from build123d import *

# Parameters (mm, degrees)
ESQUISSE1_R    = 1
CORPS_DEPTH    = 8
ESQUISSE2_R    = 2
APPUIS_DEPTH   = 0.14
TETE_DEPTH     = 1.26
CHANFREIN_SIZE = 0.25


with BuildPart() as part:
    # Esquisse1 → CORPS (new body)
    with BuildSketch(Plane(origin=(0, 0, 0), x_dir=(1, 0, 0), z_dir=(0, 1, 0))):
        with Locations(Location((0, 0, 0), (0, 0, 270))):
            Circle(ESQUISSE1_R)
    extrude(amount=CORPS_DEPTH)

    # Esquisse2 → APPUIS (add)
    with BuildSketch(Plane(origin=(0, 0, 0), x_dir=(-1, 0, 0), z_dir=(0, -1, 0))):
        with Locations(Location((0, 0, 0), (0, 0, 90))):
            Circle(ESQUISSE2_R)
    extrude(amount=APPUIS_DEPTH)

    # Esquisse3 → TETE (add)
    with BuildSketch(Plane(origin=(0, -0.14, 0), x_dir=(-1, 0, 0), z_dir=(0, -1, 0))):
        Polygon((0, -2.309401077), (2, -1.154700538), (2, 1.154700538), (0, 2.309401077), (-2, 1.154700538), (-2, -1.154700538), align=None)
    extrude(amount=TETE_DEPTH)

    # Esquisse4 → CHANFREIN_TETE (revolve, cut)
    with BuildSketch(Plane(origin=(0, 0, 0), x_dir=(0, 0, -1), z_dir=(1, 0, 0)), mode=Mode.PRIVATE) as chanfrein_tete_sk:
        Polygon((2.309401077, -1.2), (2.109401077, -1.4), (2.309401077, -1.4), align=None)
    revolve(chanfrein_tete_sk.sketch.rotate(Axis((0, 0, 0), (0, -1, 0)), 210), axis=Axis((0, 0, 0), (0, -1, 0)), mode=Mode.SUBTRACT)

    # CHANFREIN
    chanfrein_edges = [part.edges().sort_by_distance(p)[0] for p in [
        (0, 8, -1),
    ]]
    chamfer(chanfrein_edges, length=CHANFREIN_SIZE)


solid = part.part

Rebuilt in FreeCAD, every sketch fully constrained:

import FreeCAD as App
import Part
import Sketcher
from FreeCAD import Vector
Q = App.Units.Quantity


def edges_at(feature, points):
    """Names of the edges that pass closest to the given points."""
    edges = feature.Shape.Edges
    near = lambda p: min(range(len(edges)), key=lambda i: edges[i].distToShape(Part.Vertex(*p))[0])
    return sorted({f"Edge{near(p) + 1}" for p in points})


def add_polygon(sketch, points):
    """Adds a closed chain of lines whose ends are joined by coincident constraints."""
    first, n = sketch.GeometryCount, len(points)
    for a, b in zip(points, points[1:] + points[:1]):
        sketch.addGeometry(Part.LineSegment(App.Vector(*a, 0), App.Vector(*b, 0)), False)
    for i in range(n):
        sketch.addConstraint(Sketcher.Constraint("Coincident", first + i, 2, first + (i + 1) % n, 1))

doc = App.newDocument("Part")
body = doc.addObject("PartDesign::Body", "Body")

sketch1 = body.newObject("Sketcher::SketchObject", "Sketch")
sketch1.AttachmentSupport = (doc.getObject("XZ_Plane"), [""])
sketch1.MapMode = "FlatFace"
sketch1.addGeometry(Part.Circle(Vector(0, 0, 0), Vector(0, 0, 1), 1), False)
sketch1.addConstraint([
    Sketcher.Constraint("Coincident", 0, 3, -1, 1),
    Sketcher.Constraint("Diameter", 0, Q("2 mm")),
])
pad1 = body.newObject("PartDesign::Pad", "Pad")
pad1.Profile = sketch1
pad1.Length = 8
pad1.Reversed = True

sketch2 = body.newObject("Sketcher::SketchObject", "Sketch001")
sketch2.AttachmentSupport = (doc.getObject("XZ_Plane"), [""])
sketch2.MapMode = "FlatFace"
sketch2.addGeometry(Part.Circle(Vector(0, 0, 0), Vector(0, 0, 1), 2), False)
sketch2.addConstraint([
    Sketcher.Constraint("Coincident", 0, 3, -1, 1),
    Sketcher.Constraint("Diameter", 0, Q("4 mm")),
])
pad2 = body.newObject("PartDesign::Pad", "Pad001")
pad2.Profile = sketch2
pad2.Length = 0.14

sketch3 = body.newObject("Sketcher::SketchObject", "Sketch002")
sketch3.AttachmentSupport = (doc.getObject("XZ_Plane"), [""])
sketch3.MapMode = "FlatFace"
sketch3.AttachmentOffset = App.Placement(Vector(0, 0, 0.14), App.Rotation())
add_polygon(sketch3, [(0, 2.3), (-2, 1.2), (-2, -1.2), (0, -2.3), (2, -1.2), (2, 1.2)])
sketch3.addConstraint([
    Sketcher.Constraint("Vertical", 1),
    Sketcher.Constraint("Vertical", 4),
    Sketcher.Constraint("Symmetric", 0, 2, 3, 2, -1, 1),
    Sketcher.Constraint("Symmetric", 2, 2, 5, 2, -1, 1),
    Sketcher.Constraint("PointOnObject", 2, 2, -2),
    Sketcher.Constraint("Parallel", 2, 5),
    Sketcher.Constraint("Horizontal", 1, 2, 3, 2),
    Sketcher.Constraint("Angle", 0, Q("-150 deg")),
    Sketcher.Constraint("DistanceX", 0, 2, -1, 1, Q("2 mm")),
    Sketcher.Constraint("DistanceY", 1, 2, 1, 1, Q("2.309401 mm")),
])
pad3 = body.newObject("PartDesign::Pad", "Pad002")
pad3.Profile = sketch3
pad3.Length = 1.26

sketch4 = body.newObject("Sketcher::SketchObject", "Sketch003")
sketch4.AttachmentSupport = (doc.getObject("YZ_Plane"), [""])
sketch4.MapMode = "FlatFace"
add_polygon(sketch4, [(-1.2, -2.31), (-1.4, -2.11), (-1.4, -2.31)])
sketch4.addConstraint([
    Sketcher.Constraint("Vertical", 1),
    Sketcher.Constraint("Horizontal", 2),
    Sketcher.Constraint("Equal", 2, 1),
    Sketcher.Constraint("DistanceX", 2, 1, 2, 2, Q("0.2 mm")),
    Sketcher.Constraint("DistanceX", 0, 2, -1, 1, Q("1.4 mm")),
    Sketcher.Constraint("DistanceY", 0, 2, -1, 1, Q("2.109401 mm")),
])
groove = body.newObject("PartDesign::Groove", "Groove")
groove.Profile = sketch4
groove.ReferenceAxis = (sketch4, ["H_Axis"])
groove.Angle = 360
doc.recompute()

chamfer = body.newObject("PartDesign::Chamfer", "Chamfer")
chamfer.Base = (groove, edges_at(groove, [(0, 8, -1)]))
chamfer.Size = 0.25

doc.recompute()
